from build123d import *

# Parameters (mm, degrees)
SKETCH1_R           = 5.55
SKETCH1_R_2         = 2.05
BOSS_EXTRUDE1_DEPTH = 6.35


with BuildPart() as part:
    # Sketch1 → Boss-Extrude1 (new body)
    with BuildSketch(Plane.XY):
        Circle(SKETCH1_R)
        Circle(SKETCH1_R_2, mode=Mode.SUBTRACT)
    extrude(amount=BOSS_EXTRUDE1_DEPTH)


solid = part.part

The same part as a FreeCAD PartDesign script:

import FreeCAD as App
import Part
import Sketcher

doc = App.newDocument("Part")
params = doc.addObject("Spreadsheet::Sheet", "Params")
for row, (alias, value) in enumerate([
    ("sketch1_diameter", "11.1 mm"),
    ("sketch1_diameter2", "4.1 mm"),
    ("pad1_length", "6.35 mm"),
], start=1):
    params.set(f"A{row}", alias)
    params.set(f"B{row}", "=" + value)
    params.setAlias(f"B{row}", alias)

body = doc.addObject("PartDesign::Body", "Body")

sketch1 = body.newObject("Sketcher::SketchObject", "Sketch")
sketch1.AttachmentSupport = (doc.getObject("XY_Plane"), [""])
sketch1.MapMode = "FlatFace"
sketch1.addGeometry([
    Part.Circle(App.Vector(0, 0, 0), App.Vector(0, 0, 1), 5.5),
    Part.Circle(App.Vector(0, 0, 0), App.Vector(0, 0, 1), 2),
], False)
sketch1.addConstraint([
    Sketcher.Constraint("Coincident", 0, 3, -1, 1),
    Sketcher.Constraint("Coincident", 1, 3, -1, 1),
    Sketcher.Constraint("Diameter", 0, 11.1),
    Sketcher.Constraint("Diameter", 1, 4.1),
])
sketch1.setExpression("Constraints[2]", "Params.sketch1_diameter")
sketch1.setExpression("Constraints[3]", "Params.sketch1_diameter2")
pad1 = body.newObject("PartDesign::Pad", "Pad")
pad1.Profile = sketch1
pad1.setExpression("Length", "Params.pad1_length")

doc.recompute()
